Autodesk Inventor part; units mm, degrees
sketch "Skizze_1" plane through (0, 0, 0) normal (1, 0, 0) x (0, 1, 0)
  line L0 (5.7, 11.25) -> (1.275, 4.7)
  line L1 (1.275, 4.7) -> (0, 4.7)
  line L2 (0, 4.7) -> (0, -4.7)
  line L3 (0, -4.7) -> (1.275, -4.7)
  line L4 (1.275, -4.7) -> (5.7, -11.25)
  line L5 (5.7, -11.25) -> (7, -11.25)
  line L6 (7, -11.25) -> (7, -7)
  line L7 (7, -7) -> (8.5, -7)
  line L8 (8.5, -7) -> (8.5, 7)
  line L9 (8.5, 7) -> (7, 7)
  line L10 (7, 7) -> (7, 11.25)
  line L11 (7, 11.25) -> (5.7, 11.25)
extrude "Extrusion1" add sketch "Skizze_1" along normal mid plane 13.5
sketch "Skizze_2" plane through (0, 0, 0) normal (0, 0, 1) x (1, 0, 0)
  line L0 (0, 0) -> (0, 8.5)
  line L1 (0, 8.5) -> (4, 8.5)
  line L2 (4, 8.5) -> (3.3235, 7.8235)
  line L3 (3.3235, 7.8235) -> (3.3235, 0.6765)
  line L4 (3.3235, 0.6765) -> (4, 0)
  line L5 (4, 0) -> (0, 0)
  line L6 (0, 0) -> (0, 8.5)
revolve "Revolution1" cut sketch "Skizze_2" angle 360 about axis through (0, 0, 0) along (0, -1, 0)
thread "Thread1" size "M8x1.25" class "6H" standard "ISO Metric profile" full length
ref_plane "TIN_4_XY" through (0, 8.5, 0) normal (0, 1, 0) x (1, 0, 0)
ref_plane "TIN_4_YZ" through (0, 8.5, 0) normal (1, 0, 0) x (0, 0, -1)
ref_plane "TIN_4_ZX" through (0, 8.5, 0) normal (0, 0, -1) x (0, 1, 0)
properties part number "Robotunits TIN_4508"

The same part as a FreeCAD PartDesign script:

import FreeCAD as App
import Part
import Sketcher

V = App.Vector


def add_polygon(sketch, points):
    """Adds a closed chain of lines whose ends are joined by coincident constraints."""
    first, n = sketch.GeometryCount, len(points)
    for a, b in zip(points, points[1:] + points[:1]):
        sketch.addGeometry(Part.LineSegment(App.Vector(*a, 0), App.Vector(*b, 0)), False)
    for i in range(n):
        sketch.addConstraint(Sketcher.Constraint("Coincident", first + i, 2, first + (i + 1) % n, 1))

doc = App.newDocument("Part")
body = doc.addObject("PartDesign::Body", "Body")

# Sketch on YZ plane
sketch1 = body.newObject("Sketcher::SketchObject", "Sketch")
sketch1.AttachmentSupport = (doc.getObject("YZ_Plane"), [""])
sketch1.MapMode = "FlatFace"
add_polygon(sketch1, [(7, 11.2), (5.7, 11.2), (1.3, 4.7), (0, 4.7), (0, -4.7), (1.3, -4.7), (5.7, -11.2), (7, -11.2), (7, -7), (8.5, -7), (8.5, 7), (7, 7)])  # lines 0-11
sketch1.addConstraint(Sketcher.Constraint("Horizontal", 0))
sketch1.addConstraint(Sketcher.Constraint("Horizontal", 2))
sketch1.addConstraint(Sketcher.Constraint("Vertical", 3))
sketch1.addConstraint(Sketcher.Constraint("Horizontal", 4))
sketch1.addConstraint(Sketcher.Constraint("Horizontal", 6))
sketch1.addConstraint(Sketcher.Constraint("Vertical", 7))
sketch1.addConstraint(Sketcher.Constraint("Horizontal", 8))
sketch1.addConstraint(Sketcher.Constraint("Vertical", 9))
sketch1.addConstraint(Sketcher.Constraint("Horizontal", 10))
sketch1.addConstraint(Sketcher.Constraint("Vertical", 11))
sketch1.addConstraint(Sketcher.Constraint("Symmetric", 2, 2, 3, 2, -1, 1))
sketch1.addConstraint(Sketcher.Constraint("Symmetric", 0, 2, 5, 2, -1))
sketch1.addConstraint(Sketcher.Constraint("Symmetric", 7, 2, 10, 2, -1))
sketch1.addConstraint(Sketcher.Constraint("Vertical", 1, 2, 4, 2))
sketch1.addConstraint(Sketcher.Constraint("DistanceY", 9, 1, 9, 2, 14.0))
sketch1.addConstraint(Sketcher.Constraint("DistanceX", 0, 2, 0, 1, 1.3))
sketch1.addConstraint(Sketcher.Constraint("DistanceX", 8, 1, 8, 2, 1.5))
sketch1.addConstraint(Sketcher.Constraint("DistanceY", 3, 2, 3, 1, 9.4))
sketch1.addConstraint(Sketcher.Constraint("DistanceX", -1, 1, 6, 2, 7.0))
sketch1.addConstraint(Sketcher.Constraint("DistanceY", 7, 1, 7, 2, 4.25))
sketch1.addConstraint(Sketcher.Constraint("DistanceX", 2, 2, 2, 1, 1.275))
pad1 = body.newObject("PartDesign::Pad", "Pad")
pad1.Profile = sketch1
pad1.Length = 13.5
pad1.Midplane = True

# Sketch on XY plane
sketch2 = body.newObject("Sketcher::SketchObject", "Sketch001")
sketch2.AttachmentSupport = (doc.getObject("XY_Plane"), [""])
sketch2.MapMode = "FlatFace"
add_polygon(sketch2, [(0, 8.5), (0, 0), (4, 0), (3.3, 0.7), (3.3, 7.8), (4, 8.5)])  # lines 0-5
sketch2.addConstraint(Sketcher.Constraint("Vertical", 0))
sketch2.addConstraint(Sketcher.Constraint("Horizontal", 1))
sketch2.addConstraint(Sketcher.Constraint("Vertical", 3))
sketch2.addConstraint(Sketcher.Constraint("Horizontal", 5))
sketch2.addConstraint(Sketcher.Constraint("Coincident", 0, 2, -1, 1))
sketch2.addConstraint(Sketcher.Constraint("Perpendicular", 2, 4))
sketch2.addConstraint(Sketcher.Constraint("Vertical", 1, 2, 4, 2))
sketch2.addConstraint(Sketcher.Constraint("Equal", 2, 4))
sketch2.addConstraint(Sketcher.Constraint("DistanceX", 1, 1, 1, 2, 4.0))
sketch2.addConstraint(Sketcher.Constraint("DistanceY", 0, 2, 0, 1, 8.5))
sketch2.addConstraint(Sketcher.Constraint("DistanceY", 3, 1, 3, 2, 7.147))
groove = body.newObject("PartDesign::Groove", "Groove")
groove.Profile = sketch2
groove.ReferenceAxis = (sketch2, ["V_Axis"])
groove.Angle = 360

doc.recompute()
